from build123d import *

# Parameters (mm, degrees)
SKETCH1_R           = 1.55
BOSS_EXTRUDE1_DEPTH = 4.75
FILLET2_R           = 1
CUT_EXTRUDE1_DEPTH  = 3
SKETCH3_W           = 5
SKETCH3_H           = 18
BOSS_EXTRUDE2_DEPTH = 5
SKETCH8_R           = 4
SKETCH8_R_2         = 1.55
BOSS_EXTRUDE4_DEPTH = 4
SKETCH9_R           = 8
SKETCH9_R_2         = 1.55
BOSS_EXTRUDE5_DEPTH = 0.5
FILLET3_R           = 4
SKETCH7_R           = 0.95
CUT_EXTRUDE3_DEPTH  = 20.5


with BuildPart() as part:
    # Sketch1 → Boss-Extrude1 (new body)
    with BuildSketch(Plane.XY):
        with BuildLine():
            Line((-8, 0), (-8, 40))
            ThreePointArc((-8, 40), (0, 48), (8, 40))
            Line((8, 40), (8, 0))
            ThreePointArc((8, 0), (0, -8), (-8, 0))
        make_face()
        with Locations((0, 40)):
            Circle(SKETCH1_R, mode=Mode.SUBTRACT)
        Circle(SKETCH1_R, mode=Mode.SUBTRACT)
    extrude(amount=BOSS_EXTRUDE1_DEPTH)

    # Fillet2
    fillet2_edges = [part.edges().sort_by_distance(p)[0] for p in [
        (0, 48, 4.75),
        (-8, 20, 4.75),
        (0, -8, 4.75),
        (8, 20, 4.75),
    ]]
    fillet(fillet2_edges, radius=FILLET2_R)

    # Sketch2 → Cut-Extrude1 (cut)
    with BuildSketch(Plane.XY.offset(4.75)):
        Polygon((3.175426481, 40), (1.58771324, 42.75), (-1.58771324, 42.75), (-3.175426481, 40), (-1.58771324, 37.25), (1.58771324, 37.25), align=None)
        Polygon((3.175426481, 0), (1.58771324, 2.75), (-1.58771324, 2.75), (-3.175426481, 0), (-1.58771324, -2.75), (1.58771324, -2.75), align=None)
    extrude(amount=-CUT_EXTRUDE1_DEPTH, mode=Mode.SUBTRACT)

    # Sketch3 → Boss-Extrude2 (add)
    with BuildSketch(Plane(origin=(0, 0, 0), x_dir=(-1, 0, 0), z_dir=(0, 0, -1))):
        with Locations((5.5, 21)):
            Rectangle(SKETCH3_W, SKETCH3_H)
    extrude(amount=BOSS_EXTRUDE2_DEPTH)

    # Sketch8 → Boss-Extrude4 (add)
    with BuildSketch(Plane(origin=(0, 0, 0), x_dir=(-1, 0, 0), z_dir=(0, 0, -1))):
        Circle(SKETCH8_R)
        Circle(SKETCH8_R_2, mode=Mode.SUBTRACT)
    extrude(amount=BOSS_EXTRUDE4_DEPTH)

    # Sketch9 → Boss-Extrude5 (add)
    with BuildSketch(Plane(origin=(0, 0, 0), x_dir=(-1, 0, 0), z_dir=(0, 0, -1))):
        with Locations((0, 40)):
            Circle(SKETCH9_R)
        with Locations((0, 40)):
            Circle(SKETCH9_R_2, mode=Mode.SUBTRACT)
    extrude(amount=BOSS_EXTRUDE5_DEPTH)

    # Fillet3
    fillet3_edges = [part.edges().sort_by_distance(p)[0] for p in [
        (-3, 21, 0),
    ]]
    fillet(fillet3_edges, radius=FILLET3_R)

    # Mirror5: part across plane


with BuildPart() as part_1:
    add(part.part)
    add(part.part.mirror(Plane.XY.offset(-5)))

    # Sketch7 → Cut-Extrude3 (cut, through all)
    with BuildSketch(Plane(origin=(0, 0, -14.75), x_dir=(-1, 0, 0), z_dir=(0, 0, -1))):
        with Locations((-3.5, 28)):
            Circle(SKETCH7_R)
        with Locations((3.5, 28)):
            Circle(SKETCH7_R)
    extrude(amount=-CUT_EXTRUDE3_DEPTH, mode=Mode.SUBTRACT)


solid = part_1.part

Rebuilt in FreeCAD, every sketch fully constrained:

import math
import FreeCAD as App
import Part
import Sketcher
from FreeCAD import Vector
Q = App.Units.Quantity


def edges_at(feature, points):
    """Names of the edges that pass closest to the given points."""
    edges = feature.Shape.Edges
    near = lambda p: min(range(len(edges)), key=lambda i: edges[i].distToShape(Part.Vertex(*p))[0])
    return sorted({f"Edge{near(p) + 1}" for p in points})

doc = App.newDocument("Part")
body = doc.addObject("PartDesign::Body", "Body")

sketch1 = body.newObject("Sketcher::SketchObject", "Sketch")
sketch1.AttachmentSupport = (doc.getObject("XY_Plane"), [""])
sketch1.MapMode = "FlatFace"
sketch1.addGeometry(Part.LineSegment(Vector(-8, 40, 0), Vector(-8, 0, 0)), False)
sketch1.addGeometry(Part.ArcOfCircle(Part.Circle(Vector(0, 0, 0), Vector(0, 0, 1), 8), math.radians(180), math.radians(360)), False)
sketch1.addGeometry(Part.LineSegment(Vector(8, 0, 0), Vector(8, 40, 0)), False)
sketch1.addGeometry(Part.ArcOfCircle(Part.Circle(Vector(0, 40, 0), Vector(0, 0, 1), 8), math.radians(0), math.radians(180)), False)
sketch1.addGeometry(Part.Circle(Vector(0, 0, 0), Vector(0, 0, 1), 1.6), False)
sketch1.addGeometry(Part.Circle(Vector(0, 40, 0), Vector(0, 0, 1), 1.6), False)
sketch1.addConstraint(Sketcher.Constraint("Tangent", 0, 2, 1, 1))
sketch1.addConstraint(Sketcher.Constraint("Tangent", 1, 2, 2, 1))
sketch1.addConstraint(Sketcher.Constraint("Tangent", 2, 2, 3, 1))
sketch1.addConstraint(Sketcher.Constraint("Tangent", 3, 2, 0, 1))
sketch1.addConstraint(Sketcher.Constraint("Vertical", 0))
sketch1.addConstraint(Sketcher.Constraint("Vertical", 2))
sketch1.addConstraint(Sketcher.Constraint("Coincident", 1, 3, -1, 1))
sketch1.addConstraint(Sketcher.Constraint("Coincident", 4, 3, -1, 1))
sketch1.addConstraint(Sketcher.Constraint("Coincident", 5, 3, 3, 3))
sketch1.addConstraint(Sketcher.Constraint("Equal", 4, 5))
sketch1.addConstraint(Sketcher.Constraint("Radius", 1, 8.0))
sketch1.addConstraint(Sketcher.Constraint("Diameter", 4, 3.1))
sketch1.addConstraint(Sketcher.Constraint("DistanceY", 0, 2, 0, 1, 40.0))
pad1 = body.newObject("PartDesign::Pad", "Pad")
pad1.Profile = sketch1
pad1.Length = 4.75
doc.recompute()

fillet = body.newObject("PartDesign::Fillet", "Fillet")
fillet.Base = (pad1, edges_at(pad1, [
    (0, 48, 4.75),
    (-8, 20, 4.75),
    (0, -8, 4.75),
    (8, 20, 4.75),
]))
fillet.Radius = 1

sketch2 = body.newObject("Sketcher::SketchObject", "Sketch001")
sketch2.AttachmentSupport = (doc.getObject("XY_Plane"), [""])
sketch2.MapMode = "FlatFace"
sketch2.AttachmentOffset = App.Placement(Vector(0, 0, 4.75), App.Rotation())
sketch2.addGeometry(Part.LineSegment(Vector(3.2, 40, 0), Vector(1.6, 42.8, 0)), False)
sketch2.addGeometry(Part.LineSegment(Vector(1.6, 42.8, 0), Vector(-1.6, 42.8, 0)), False)
sketch2.addGeometry(Part.LineSegment(Vector(-1.6, 42.8, 0), Vector(-3.2, 40, 0)), False)
sketch2.addGeometry(Part.LineSegment(Vector(-3.2, 40, 0), Vector(-1.6, 37.2, 0)), False)
sketch2.addGeometry(Part.LineSegment(Vector(-1.6, 37.2, 0), Vector(1.6, 37.2, 0)), False)
sketch2.addGeometry(Part.LineSegment(Vector(1.6, 37.2, 0), Vector(3.2, 40, 0)), False)
sketch2.addGeometry(Part.LineSegment(Vector(3.2, 0, 0), Vector(1.6, 2.8, 0)), False)
sketch2.addGeometry(Part.LineSegment(Vector(1.6, 2.8, 0), Vector(-1.6, 2.8, 0)), False)
sketch2.addGeometry(Part.LineSegment(Vector(-1.6, 2.8, 0), Vector(-3.2, 0, 0)), False)
sketch2.addGeometry(Part.LineSegment(Vector(-3.2, 0, 0), Vector(-1.6, -2.8, 0)), False)
sketch2.addGeometry(Part.LineSegment(Vector(-1.6, -2.8, 0), Vector(1.6, -2.8, 0)), False)
sketch2.addGeometry(Part.LineSegment(Vector(1.6, -2.8, 0), Vector(3.2, 0, 0)), False)
sketch2.addConstraint(Sketcher.Constraint("Coincident", 0, 2, 1, 1))
sketch2.addConstraint(Sketcher.Constraint("Coincident", 1, 2, 2, 1))
sketch2.addConstraint(Sketcher.Constraint("Coincident", 2, 2, 3, 1))
sketch2.addConstraint(Sketcher.Constraint("Coincident", 3, 2, 4, 1))
sketch2.addConstraint(Sketcher.Constraint("Coincident", 4, 2, 5, 1))
sketch2.addConstraint(Sketcher.Constraint("Coincident", 5, 2, 0, 1))
sketch2.addConstraint(Sketcher.Constraint("Coincident", 6, 2, 7, 1))
sketch2.addConstraint(Sketcher.Constraint("Coincident", 7, 2, 8, 1))
sketch2.addConstraint(Sketcher.Constraint("Coincident", 8, 2, 9, 1))
sketch2.addConstraint(Sketcher.Constraint("Coincident", 9, 2, 10, 1))
sketch2.addConstraint(Sketcher.Constraint("Coincident", 10, 2, 11, 1))
sketch2.addConstraint(Sketcher.Constraint("Coincident", 11, 2, 6, 1))
sketch2.addConstraint(Sketcher.Constraint("Horizontal", 1))
sketch2.addConstraint(Sketcher.Constraint("Horizontal", 4))
sketch2.addConstraint(Sketcher.Constraint("Horizontal", 7))
sketch2.addConstraint(Sketcher.Constraint("Horizontal", 10))
sketch2.addConstraint(Sketcher.Constraint("Symmetric", 6, 2, 9, 2, -1, 1))
sketch2.addConstraint(Sketcher.Constraint("Symmetric", 8, 2, 11, 2, -1, 1))
sketch2.addConstraint(Sketcher.Constraint("Symmetric", 2, 2, 5, 2, -2))
sketch2.addConstraint(Sketcher.Constraint("PointOnObject", 8, 2, -1))
sketch2.addConstraint(Sketcher.Constraint("Parallel", 0, 3))
sketch2.addConstraint(Sketcher.Constraint("Parallel", 2, 5))
sketch2.addConstraint(Sketcher.Constraint("Parallel", 3, 6))
sketch2.addConstraint(Sketcher.Constraint("Parallel", 5, 8))
sketch2.addConstraint(Sketcher.Constraint("Parallel", 8, 11))
sketch2.addConstraint(Sketcher.Constraint("Vertical", 1, 2, 3, 2))
sketch2.addConstraint(Sketcher.Constraint("Vertical", 0, 2, 4, 2))
sketch2.addConstraint(Sketcher.Constraint("Vertical", 4, 2, 6, 2))
sketch2.addConstraint(Sketcher.Constraint("Vertical", 2, 2, 8, 2))
sketch2.addConstraint(Sketcher.Constraint("Angle", 0, Q("120 deg")))
sketch2.addConstraint(Sketcher.Constraint("DistanceY", -1, 1, 2, 2, 40.0))
sketch2.addConstraint(Sketcher.Constraint("DistanceY", 3, 2, 1, 2, 5.5))
sketch2.addConstraint(Sketcher.Constraint("DistanceX", 1, 2, 1, 1, 3.175426))
pocket1 = body.newObject("PartDesign::Pocket", "Pocket")
pocket1.Profile = sketch2
pocket1.Length = 3

sketch3 = body.newObject("Sketcher::SketchObject", "Sketch002")
sketch3.AttachmentSupport = (doc.getObject("XY_Plane"), [""])
sketch3.MapMode = "FlatFace"
sketch3.addGeometry(Part.LineSegment(Vector(-3, 30, 0), Vector(-3, 12, 0)), False)
sketch3.addGeometry(Part.LineSegment(Vector(-3, 12, 0), Vector(-8, 12, 0)), False)
sketch3.addGeometry(Part.LineSegment(Vector(-8, 12, 0), Vector(-8, 30, 0)), False)
sketch3.addGeometry(Part.LineSegment(Vector(-8, 30, 0), Vector(-3, 30, 0)), False)
sketch3.addConstraint(Sketcher.Constraint("Coincident", 0, 2, 1, 1))
sketch3.addConstraint(Sketcher.Constraint("Coincident", 1, 2, 2, 1))
sketch3.addConstraint(Sketcher.Constraint("Coincident", 2, 2, 3, 1))
sketch3.addConstraint(Sketcher.Constraint("Coincident", 3, 2, 0, 1))
sketch3.addConstraint(Sketcher.Constraint("Vertical", 0))
sketch3.addConstraint(Sketcher.Constraint("Horizontal", 1))
sketch3.addConstraint(Sketcher.Constraint("Vertical", 2))
sketch3.addConstraint(Sketcher.Constraint("Horizontal", 3))
sketch3.addConstraint(Sketcher.Constraint("DistanceX", 1, 2, 1, 1, 5.0))
sketch3.addConstraint(Sketcher.Constraint("DistanceY", 0, 2, 0, 1, 18.0))
sketch3.addConstraint(Sketcher.Constraint("DistanceX", 0, 2, -1, 1, 3.0))
sketch3.addConstraint(Sketcher.Constraint("DistanceY", -1, 1, 0, 2, 12.0))
pad2 = body.newObject("PartDesign::Pad", "Pad001")
pad2.Profile = sketch3
pad2.Length = 5
pad2.Reversed = True

sketch4 = body.newObject("Sketcher::SketchObject", "Sketch003")
sketch4.AttachmentSupport = (doc.getObject("XY_Plane"), [""])
sketch4.MapMode = "FlatFace"
sketch4.addGeometry(Part.Circle(Vector(0, 0, 0), Vector(0, 0, 1), 4), False)
sketch4.addGeometry(Part.Circle(Vector(0, 0, 0), Vector(0, 0, 1), 1.6), False)
sketch4.addConstraint(Sketcher.Constraint("Coincident", 0, 3, -1, 1))
sketch4.addConstraint(Sketcher.Constraint("Coincident", 1, 3, -1, 1))
sketch4.addConstraint(Sketcher.Constraint("Diameter", 0, 8.0))
sketch4.addConstraint(Sketcher.Constraint("Diameter", 1, 3.1))
pad3 = body.newObject("PartDesign::Pad", "Pad002")
pad3.Profile = sketch4
pad3.Length = 4
pad3.Reversed = True

sketch5 = body.newObject("Sketcher::SketchObject", "Sketch004")
sketch5.AttachmentSupport = (doc.getObject("XY_Plane"), [""])
sketch5.MapMode = "FlatFace"
sketch5.addGeometry(Part.Circle(Vector(0, 40, 0), Vector(0, 0, 1), 8), False)
sketch5.addGeometry(Part.Circle(Vector(0, 40, 0), Vector(0, 0, 1), 1.6), False)
sketch5.addConstraint(Sketcher.Constraint("Coincident", 1, 3, 0, 3))
sketch5.addConstraint(Sketcher.Constraint("PointOnObject", 0, 3, -2))
sketch5.addConstraint(Sketcher.Constraint("Diameter", 0, 16.0))
sketch5.addConstraint(Sketcher.Constraint("Diameter", 1, 3.1))
sketch5.addConstraint(Sketcher.Constraint("DistanceY", -1, 1, 0, 3, 40.0))
pad4 = body.newObject("PartDesign::Pad", "Pad003")
pad4.Profile = sketch5
pad4.Length = 0.5
pad4.Reversed = True
doc.recompute()

fillet2 = body.newObject("PartDesign::Fillet", "Fillet001")
fillet2.Base = (pad4, edges_at(pad4, [(-3, 21, 0)]))
fillet2.Radius = 4
body2 = doc.addObject("PartDesign::Body", "Body001")
doc.recompute()

body2.BaseFeature = body
doc.recompute()

mirroring = doc.addObject("Part::Mirroring", "Mirroring")
mirroring.Source = body
mirroring.Base = Vector(0, 0, -5)
mirroring.Normal = Vector(0, 0, 1)
body3 = doc.addObject("PartDesign::Body", "Body002")
body3.BaseFeature = mirroring
boolean = body2.newObject("PartDesign::Boolean", "Boolean")
boolean.Type = "Fuse"
boolean.addObjects([body3])
doc.recompute()

sketch6 = body2.newObject("Sketcher::SketchObject", "Sketch005")
sketch6.AttachmentSupport = (doc.getObject("XY_Plane001"), [""])
sketch6.MapMode = "FlatFace"
sketch6.AttachmentOffset = App.Placement(Vector(0, 0, -14.75), App.Rotation())
sketch6.addGeometry(Part.Circle(Vector(3.5, 28, 0), Vector(0, 0, 1), 0.9), False)
sketch6.addGeometry(Part.Circle(Vector(-3.5, 28, 0), Vector(0, 0, 1), 0.9), False)
sketch6.addConstraint(Sketcher.Constraint("Equal", 0, 1))
sketch6.addConstraint(Sketcher.Constraint("Symmetric", 0, 3, 1, 3, -2))
sketch6.addConstraint(Sketcher.Constraint("Diameter", 0, 1.9))
sketch6.addConstraint(Sketcher.Constraint("DistanceY", -1, 1, 0, 3, 28.0))
sketch6.addConstraint(Sketcher.Constraint("DistanceX", 1, 3, 0, 3, 7.0))
pocket2 = body2.newObject("PartDesign::Pocket", "Pocket001")
pocket2.Profile = sketch6
pocket2.Type = "ThroughAll"
pocket2.Reversed = True
mirroring.Visibility = False

doc.recompute()
